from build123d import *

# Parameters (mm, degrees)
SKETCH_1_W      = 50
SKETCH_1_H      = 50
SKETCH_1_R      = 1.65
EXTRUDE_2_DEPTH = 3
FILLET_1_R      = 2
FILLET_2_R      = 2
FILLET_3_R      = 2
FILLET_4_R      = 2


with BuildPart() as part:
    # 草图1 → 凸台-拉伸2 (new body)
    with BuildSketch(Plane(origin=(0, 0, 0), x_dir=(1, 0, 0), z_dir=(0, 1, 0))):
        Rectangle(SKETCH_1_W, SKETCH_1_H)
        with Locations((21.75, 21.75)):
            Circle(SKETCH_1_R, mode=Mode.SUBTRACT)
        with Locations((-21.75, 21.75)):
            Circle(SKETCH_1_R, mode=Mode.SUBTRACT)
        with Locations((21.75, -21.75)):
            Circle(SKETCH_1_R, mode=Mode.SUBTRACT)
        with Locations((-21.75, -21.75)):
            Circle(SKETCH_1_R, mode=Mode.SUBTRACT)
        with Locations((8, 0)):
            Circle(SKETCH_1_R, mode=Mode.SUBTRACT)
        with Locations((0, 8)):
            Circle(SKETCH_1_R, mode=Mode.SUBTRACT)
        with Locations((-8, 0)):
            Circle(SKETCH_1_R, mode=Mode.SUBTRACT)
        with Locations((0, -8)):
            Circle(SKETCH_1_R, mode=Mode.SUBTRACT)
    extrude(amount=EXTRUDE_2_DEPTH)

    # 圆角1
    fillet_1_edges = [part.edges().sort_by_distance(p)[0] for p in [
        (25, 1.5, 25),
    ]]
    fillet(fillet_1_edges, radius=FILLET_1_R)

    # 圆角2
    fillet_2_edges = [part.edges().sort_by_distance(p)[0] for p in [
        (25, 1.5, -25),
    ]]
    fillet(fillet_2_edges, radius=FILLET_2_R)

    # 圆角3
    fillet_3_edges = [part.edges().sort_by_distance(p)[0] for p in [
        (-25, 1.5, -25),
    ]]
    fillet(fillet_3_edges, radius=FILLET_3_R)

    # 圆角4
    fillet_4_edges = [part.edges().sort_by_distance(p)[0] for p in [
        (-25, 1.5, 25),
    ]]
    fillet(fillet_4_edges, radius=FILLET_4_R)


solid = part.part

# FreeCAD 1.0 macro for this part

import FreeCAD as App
import Part
import Sketcher

V = App.Vector
Q = App.Units.Quantity


def edges_at(feature, points):
    """Names of the edges that pass closest to the given points."""
    edges = feature.Shape.Edges
    near = lambda p: min(range(len(edges)), key=lambda i: edges[i].distToShape(Part.Vertex(*p))[0])
    return sorted({f"Edge{near(p) + 1}" for p in points})


def add_polygon(sketch, points):
    """Adds a closed chain of lines whose ends are joined by coincident constraints."""
    first, n = sketch.GeometryCount, len(points)
    for a, b in zip(points, points[1:] + points[:1]):
        sketch.addGeometry(Part.LineSegment(App.Vector(*a, 0), App.Vector(*b, 0)), False)
    for i in range(n):
        sketch.addConstraint(Sketcher.Constraint("Coincident", first + i, 2, first + (i + 1) % n, 1))

doc = App.newDocument("Part")
body = doc.addObject("PartDesign::Body", "Body")

# Sketch on XZ plane
sketch1 = body.newObject("Sketcher::SketchObject", "Sketch")
sketch1.AttachmentSupport = (doc.getObject("XZ_Plane"), [""])
sketch1.MapMode = "FlatFace"
add_polygon(sketch1, [(-25, -25), (-25, 25), (25, 25), (25, -25)])  # lines 0-3
sketch1.addGeometry(Part.Circle(V(-21.8, 21.8, 0), V(0, 0, 1), 1.6), False)  # 4
sketch1.addGeometry(Part.Circle(V(21.8, 21.8, 0), V(0, 0, 1), 1.6), False)  # 5
sketch1.addGeometry(Part.Circle(V(0, 8, 0), V(0, 0, 1), 1.6), False)  # 6
sketch1.addGeometry(Part.Circle(V(-8, 0, 0), V(0, 0, 1), 1.6), False)  # 7
sketch1.addGeometry(Part.Circle(V(-21.8, -21.8, 0), V(0, 0, 1), 1.6), False)  # 8
sketch1.addGeometry(Part.Circle(V(8, 0, 0), V(0, 0, 1), 1.6), False)  # 9
sketch1.addGeometry(Part.Circle(V(0, -8, 0), V(0, 0, 1), 1.6), False)  # 10
sketch1.addGeometry(Part.Circle(V(21.8, -21.8, 0), V(0, 0, 1), 1.6), False)  # 11
sketch1.addConstraint([
    Sketcher.Constraint("Vertical", 0),
    Sketcher.Constraint("Horizontal", 1),
    Sketcher.Constraint("Vertical", 2),
    Sketcher.Constraint("Horizontal", 3),
    Sketcher.Constraint("Equal", 4, 5),
    Sketcher.Constraint("Equal", 5, 6),
    Sketcher.Constraint("Equal", 6, 7),
    Sketcher.Constraint("Equal", 7, 8),
    Sketcher.Constraint("Equal", 8, 9),
    Sketcher.Constraint("Equal", 9, 10),
    Sketcher.Constraint("Equal", 10, 11),
    Sketcher.Constraint("Symmetric", 5, 3, 8, 3, -1, 1),
    Sketcher.Constraint("Symmetric", 7, 3, 9, 3, -1, 1),
    Sketcher.Constraint("Symmetric", 6, 3, 10, 3, -1, 1),
    Sketcher.Constraint("Symmetric", 4, 3, 11, 3, -1, 1),
    Sketcher.Constraint("Symmetric", 0, 2, 2, 2, -1, 1),
    Sketcher.Constraint("Symmetric", 4, 3, 5, 3, -2),
    Sketcher.Constraint("PointOnObject", 6, 3, -2),
    Sketcher.Constraint("PointOnObject", 7, 3, -1),
    Sketcher.Constraint("Equal", 3, 0),
    Sketcher.Constraint("Diameter", 4, Q("3.3 mm")),
    Sketcher.Constraint("DistanceX", 1, 1, 1, 2, Q("50 mm")),
    Sketcher.Constraint("DistanceY", -1, 1, 6, 3, Q("8 mm")),
    Sketcher.Constraint("DistanceX", 7, 3, -1, 1, Q("8 mm")),
    Sketcher.Constraint("DistanceX", 4, 3, 5, 3, Q("43.5 mm")),
    Sketcher.Constraint("DistanceY", 8, 3, 4, 3, Q("43.5 mm")),
])
pad1 = body.newObject("PartDesign::Pad", "Pad")
pad1.Profile = sketch1
pad1.Length = 3
pad1.Reversed = True
doc.recompute()

fillet = body.newObject("PartDesign::Fillet", "Fillet")
fillet.Base = (pad1, edges_at(pad1, [(25, 1.5, 25)]))
fillet.Radius = 2
doc.recompute()

fillet2 = body.newObject("PartDesign::Fillet", "Fillet001")
fillet2.Base = (fillet, edges_at(fillet, [(25, 1.5, -25)]))
fillet2.Radius = 2
doc.recompute()

fillet3 = body.newObject("PartDesign::Fillet", "Fillet002")
fillet3.Base = (fillet2, edges_at(fillet2, [(-25, 1.5, -25)]))
fillet3.Radius = 2
doc.recompute()

fillet4 = body.newObject("PartDesign::Fillet", "Fillet003")
fillet4.Base = (fillet3, edges_at(fillet3, [(-25, 1.5, 25)]))
fillet4.Radius = 2

doc.recompute()
